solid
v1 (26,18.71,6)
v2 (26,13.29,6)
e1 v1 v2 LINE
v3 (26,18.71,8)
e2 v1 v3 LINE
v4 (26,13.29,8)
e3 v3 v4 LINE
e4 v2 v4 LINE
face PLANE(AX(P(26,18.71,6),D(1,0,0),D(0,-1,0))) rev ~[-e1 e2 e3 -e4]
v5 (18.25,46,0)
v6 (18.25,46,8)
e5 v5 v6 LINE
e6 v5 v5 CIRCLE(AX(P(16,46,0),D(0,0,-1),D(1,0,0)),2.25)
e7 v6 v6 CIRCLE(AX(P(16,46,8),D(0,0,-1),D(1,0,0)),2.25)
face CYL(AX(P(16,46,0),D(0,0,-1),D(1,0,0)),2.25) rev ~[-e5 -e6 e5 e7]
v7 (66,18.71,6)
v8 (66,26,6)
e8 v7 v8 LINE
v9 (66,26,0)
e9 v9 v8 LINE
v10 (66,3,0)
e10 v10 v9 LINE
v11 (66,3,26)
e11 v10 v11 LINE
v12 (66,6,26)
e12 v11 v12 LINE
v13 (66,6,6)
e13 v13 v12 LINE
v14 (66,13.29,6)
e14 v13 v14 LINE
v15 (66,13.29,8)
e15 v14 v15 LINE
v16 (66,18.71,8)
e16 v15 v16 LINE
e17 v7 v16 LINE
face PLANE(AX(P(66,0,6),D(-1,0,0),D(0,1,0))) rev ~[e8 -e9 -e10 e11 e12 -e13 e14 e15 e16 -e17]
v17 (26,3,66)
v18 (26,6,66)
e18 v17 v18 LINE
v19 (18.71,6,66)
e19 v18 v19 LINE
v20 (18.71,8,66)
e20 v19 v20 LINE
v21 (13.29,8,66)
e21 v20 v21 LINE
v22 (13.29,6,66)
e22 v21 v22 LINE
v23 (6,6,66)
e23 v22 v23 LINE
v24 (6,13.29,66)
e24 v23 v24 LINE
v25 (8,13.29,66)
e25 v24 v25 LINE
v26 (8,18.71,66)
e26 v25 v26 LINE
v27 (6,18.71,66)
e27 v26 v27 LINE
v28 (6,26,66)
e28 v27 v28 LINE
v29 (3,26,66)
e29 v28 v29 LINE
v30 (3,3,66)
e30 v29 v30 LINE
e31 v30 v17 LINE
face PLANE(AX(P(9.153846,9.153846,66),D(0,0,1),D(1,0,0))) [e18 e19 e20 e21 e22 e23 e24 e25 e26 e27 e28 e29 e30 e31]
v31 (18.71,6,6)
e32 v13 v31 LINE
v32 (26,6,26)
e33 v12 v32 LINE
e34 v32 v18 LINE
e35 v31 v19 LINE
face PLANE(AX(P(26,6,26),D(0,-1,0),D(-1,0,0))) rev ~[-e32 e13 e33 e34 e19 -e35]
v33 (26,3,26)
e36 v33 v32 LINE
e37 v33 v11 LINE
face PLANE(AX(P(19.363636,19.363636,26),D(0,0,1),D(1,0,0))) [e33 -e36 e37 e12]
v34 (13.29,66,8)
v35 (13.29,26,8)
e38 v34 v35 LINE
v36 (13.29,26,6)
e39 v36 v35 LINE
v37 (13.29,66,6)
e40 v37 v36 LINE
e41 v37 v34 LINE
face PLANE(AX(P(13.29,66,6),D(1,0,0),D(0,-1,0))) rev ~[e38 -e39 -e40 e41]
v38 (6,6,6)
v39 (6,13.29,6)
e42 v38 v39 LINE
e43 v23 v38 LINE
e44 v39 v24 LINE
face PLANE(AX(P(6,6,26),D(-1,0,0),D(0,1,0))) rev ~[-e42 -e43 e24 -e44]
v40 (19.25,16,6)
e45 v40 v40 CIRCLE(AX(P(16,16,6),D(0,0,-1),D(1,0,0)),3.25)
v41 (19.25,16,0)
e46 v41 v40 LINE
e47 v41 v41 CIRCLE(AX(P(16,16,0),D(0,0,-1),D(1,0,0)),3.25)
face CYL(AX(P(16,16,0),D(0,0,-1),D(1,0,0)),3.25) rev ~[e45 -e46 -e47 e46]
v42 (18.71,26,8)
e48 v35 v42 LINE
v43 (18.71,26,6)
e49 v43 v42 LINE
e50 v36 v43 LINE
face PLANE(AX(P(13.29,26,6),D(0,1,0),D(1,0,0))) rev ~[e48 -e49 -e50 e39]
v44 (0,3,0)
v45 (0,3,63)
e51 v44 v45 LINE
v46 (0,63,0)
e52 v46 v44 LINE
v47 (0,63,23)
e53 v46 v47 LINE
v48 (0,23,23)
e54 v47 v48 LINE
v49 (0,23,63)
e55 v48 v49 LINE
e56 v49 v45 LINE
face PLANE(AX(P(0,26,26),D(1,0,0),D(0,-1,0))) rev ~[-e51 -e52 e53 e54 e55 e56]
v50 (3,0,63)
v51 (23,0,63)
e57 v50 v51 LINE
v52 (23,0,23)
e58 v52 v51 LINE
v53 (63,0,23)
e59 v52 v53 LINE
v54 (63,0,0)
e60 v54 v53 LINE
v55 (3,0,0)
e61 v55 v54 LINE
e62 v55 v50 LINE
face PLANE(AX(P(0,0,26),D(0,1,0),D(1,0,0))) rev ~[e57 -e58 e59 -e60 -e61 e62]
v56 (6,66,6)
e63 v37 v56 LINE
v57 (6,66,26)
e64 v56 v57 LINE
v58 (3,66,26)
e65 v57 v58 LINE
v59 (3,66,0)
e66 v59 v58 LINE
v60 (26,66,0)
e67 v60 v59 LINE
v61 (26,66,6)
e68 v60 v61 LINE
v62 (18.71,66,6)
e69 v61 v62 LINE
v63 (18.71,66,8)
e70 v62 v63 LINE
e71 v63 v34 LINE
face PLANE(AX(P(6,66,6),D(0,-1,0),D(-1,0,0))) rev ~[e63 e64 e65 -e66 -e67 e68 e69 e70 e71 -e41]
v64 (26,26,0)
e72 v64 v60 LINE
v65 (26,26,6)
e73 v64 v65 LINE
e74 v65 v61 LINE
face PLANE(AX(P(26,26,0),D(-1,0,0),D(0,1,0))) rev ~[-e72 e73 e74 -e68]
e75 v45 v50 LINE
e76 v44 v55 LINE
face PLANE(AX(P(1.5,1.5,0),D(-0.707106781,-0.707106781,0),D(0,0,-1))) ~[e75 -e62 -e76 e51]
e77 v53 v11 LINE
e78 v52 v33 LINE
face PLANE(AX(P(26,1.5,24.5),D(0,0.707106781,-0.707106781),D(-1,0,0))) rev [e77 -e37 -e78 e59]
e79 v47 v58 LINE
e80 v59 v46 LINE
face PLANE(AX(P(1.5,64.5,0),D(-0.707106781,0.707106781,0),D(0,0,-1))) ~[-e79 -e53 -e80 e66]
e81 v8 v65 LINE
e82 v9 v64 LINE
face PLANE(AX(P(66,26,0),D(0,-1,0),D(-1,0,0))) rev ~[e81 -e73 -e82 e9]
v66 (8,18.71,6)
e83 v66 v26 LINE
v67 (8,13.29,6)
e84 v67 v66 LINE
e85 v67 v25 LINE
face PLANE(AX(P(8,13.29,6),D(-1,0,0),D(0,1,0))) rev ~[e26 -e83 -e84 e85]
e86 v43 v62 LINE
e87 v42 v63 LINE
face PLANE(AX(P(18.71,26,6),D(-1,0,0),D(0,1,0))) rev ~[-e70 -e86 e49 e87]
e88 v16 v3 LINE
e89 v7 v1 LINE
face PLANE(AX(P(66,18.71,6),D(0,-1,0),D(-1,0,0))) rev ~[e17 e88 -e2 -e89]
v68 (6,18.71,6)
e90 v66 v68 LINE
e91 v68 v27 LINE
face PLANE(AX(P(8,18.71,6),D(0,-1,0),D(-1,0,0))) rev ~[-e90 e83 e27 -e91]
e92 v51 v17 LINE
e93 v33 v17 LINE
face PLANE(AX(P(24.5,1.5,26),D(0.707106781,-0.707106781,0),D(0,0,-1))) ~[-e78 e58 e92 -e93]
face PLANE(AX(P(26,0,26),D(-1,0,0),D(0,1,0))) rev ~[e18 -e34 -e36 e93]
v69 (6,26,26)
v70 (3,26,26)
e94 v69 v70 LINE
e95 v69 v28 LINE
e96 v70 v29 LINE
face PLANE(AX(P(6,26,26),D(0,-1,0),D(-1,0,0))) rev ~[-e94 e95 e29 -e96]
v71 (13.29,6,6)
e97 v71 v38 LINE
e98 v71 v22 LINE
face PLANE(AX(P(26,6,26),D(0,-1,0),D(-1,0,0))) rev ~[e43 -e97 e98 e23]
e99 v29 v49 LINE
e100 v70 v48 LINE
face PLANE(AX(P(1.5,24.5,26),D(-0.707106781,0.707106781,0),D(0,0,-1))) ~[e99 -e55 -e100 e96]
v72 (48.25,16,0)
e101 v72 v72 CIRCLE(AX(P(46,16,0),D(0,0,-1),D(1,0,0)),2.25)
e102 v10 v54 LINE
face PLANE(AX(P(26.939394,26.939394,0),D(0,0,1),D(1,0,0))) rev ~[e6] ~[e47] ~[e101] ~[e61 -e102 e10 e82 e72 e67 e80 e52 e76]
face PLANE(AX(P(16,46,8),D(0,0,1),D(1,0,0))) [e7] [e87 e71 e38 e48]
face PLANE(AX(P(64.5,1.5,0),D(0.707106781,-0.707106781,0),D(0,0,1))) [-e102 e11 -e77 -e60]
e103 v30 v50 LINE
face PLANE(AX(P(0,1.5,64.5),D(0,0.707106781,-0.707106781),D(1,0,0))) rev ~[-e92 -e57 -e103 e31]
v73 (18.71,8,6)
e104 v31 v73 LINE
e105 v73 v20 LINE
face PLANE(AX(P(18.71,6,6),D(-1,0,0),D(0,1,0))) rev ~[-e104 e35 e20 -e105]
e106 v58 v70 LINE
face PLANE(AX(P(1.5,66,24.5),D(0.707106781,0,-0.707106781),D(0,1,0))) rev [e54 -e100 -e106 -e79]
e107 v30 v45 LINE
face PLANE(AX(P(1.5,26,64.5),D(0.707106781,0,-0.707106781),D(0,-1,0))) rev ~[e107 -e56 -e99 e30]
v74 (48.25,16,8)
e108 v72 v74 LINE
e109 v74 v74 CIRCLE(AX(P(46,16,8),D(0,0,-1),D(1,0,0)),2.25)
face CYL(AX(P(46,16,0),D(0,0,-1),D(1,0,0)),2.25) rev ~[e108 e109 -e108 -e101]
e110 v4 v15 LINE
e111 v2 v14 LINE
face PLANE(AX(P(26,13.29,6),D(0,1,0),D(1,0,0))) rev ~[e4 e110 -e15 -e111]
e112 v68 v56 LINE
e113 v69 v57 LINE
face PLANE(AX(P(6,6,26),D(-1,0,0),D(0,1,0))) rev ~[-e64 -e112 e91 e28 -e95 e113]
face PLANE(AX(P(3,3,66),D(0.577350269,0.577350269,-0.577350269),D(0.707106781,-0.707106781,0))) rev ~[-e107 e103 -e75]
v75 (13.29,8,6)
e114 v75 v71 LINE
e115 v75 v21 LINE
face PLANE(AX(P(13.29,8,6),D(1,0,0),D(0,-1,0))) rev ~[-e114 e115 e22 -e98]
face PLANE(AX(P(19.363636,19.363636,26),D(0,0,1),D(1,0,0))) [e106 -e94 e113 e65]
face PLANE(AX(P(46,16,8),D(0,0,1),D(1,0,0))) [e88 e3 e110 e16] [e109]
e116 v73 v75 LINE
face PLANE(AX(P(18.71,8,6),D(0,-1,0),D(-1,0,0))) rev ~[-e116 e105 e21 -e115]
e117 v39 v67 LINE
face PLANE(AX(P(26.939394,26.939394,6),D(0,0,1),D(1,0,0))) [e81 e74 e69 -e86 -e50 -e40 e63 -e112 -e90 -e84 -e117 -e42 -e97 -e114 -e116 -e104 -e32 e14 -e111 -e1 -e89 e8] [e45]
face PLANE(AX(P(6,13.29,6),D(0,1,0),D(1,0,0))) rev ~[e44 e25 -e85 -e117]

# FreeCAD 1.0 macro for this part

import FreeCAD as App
import Part
import Sketcher
Q = App.Units.Quantity


def edges_at(feature, points):
    """Names of the edges that pass closest to the given points."""
    edges = feature.Shape.Edges
    near = lambda p: min(range(len(edges)), key=lambda i: edges[i].distToShape(Part.Vertex(*p))[0])
    return sorted({f"Edge{near(p) + 1}" for p in points})


def add_polygon(sketch, points):
    """Adds a closed chain of lines whose ends are joined by coincident constraints."""
    first, n = sketch.GeometryCount, len(points)
    for a, b in zip(points, points[1:] + points[:1]):
        sketch.addGeometry(Part.LineSegment(App.Vector(*a, 0), App.Vector(*b, 0)), False)
    for i in range(n):
        sketch.addConstraint(Sketcher.Constraint("Coincident", first + i, 2, first + (i + 1) % n, 1))

doc = App.newDocument("Part")
body = doc.addObject("PartDesign::Body", "Body")

sketch1 = doc.addObject("Sketcher::SketchObject", "Sketch")
body.addObject(sketch1)
sketch1.AttachmentSupport = (doc.XY_Plane, [""])
sketch1.MapMode = "FlatFace"
add_polygon(sketch1, [(0, 66), (0, 0), (66, 0), (66, 26), (26, 26), (26, 66)])
sketch1.addConstraint([
    Sketcher.Constraint("Vertical", 0),
    Sketcher.Constraint("Horizontal", 1),
    Sketcher.Constraint("Vertical", 2),
    Sketcher.Constraint("Horizontal", 3),
    Sketcher.Constraint("Vertical", 4),
    Sketcher.Constraint("Horizontal", 5),
    Sketcher.Constraint("Coincident", 0, 2, -1, 1),
    Sketcher.Constraint("Equal", 1, 0),
    Sketcher.Constraint("Equal", 5, 2),
    Sketcher.Constraint("DistanceX", 1, 1, 1, 2, Q("66 mm")),
    Sketcher.Constraint("DistanceX", 3, 2, 3, 1, Q("40 mm")),
])
pad1 = doc.addObject("PartDesign::Pad", "Pad")
body.addObject(pad1)
pad1.Profile = sketch1
pad1.Length = 6

sketch2 = doc.addObject("Sketcher::SketchObject", "Sketch001")
body.addObject(sketch2)
sketch2.AttachmentSupport = (doc.XY_Plane, [""])
sketch2.MapMode = "FlatFace"
sketch2.AttachmentOffset = App.Placement(App.Vector(0, 0, 6), App.Rotation())
add_polygon(sketch2, [(6, 66), (0, 66), (0, 0), (66, 0), (66, 6), (6, 6)])
sketch2.addConstraint([
    Sketcher.Constraint("Horizontal", 0),
    Sketcher.Constraint("Vertical", 1),
    Sketcher.Constraint("Horizontal", 2),
    Sketcher.Constraint("Vertical", 3),
    Sketcher.Constraint("Horizontal", 4),
    Sketcher.Constraint("Vertical", 5),
    Sketcher.Constraint("Coincident", 1, 2, -1, 1),
    Sketcher.Constraint("Equal", 2, 1),
    Sketcher.Constraint("Equal", 0, 3),
    Sketcher.Constraint("DistanceX", 0, 2, 0, 1, Q("6 mm")),
    Sketcher.Constraint("DistanceX", 2, 1, 2, 2, Q("66 mm")),
])
pad2 = doc.addObject("PartDesign::Pad", "Pad001")
body.addObject(pad2)
pad2.Profile = sketch2
pad2.Length = 20

sketch3 = doc.addObject("Sketcher::SketchObject", "Sketch002")
body.addObject(sketch3)
sketch3.AttachmentSupport = (doc.XY_Plane, [""])
sketch3.MapMode = "FlatFace"
sketch3.AttachmentOffset = App.Placement(App.Vector(0, 0, 26), App.Rotation())
add_polygon(sketch3, [(6, 6), (6, 26), (0, 26), (0, 0), (26, 0), (26, 6)])
sketch3.addConstraint([
    Sketcher.Constraint("Vertical", 0),
    Sketcher.Constraint("Horizontal", 1),
    Sketcher.Constraint("Vertical", 2),
    Sketcher.Constraint("Horizontal", 3),
    Sketcher.Constraint("Vertical", 4),
    Sketcher.Constraint("Horizontal", 5),
    Sketcher.Constraint("Coincident", 2, 2, -1, 1),
    Sketcher.Constraint("Equal", 5, 0),
    Sketcher.Constraint("Equal", 3, 2),
    Sketcher.Constraint("DistanceX", 1, 2, 1, 1, Q("6 mm")),
    Sketcher.Constraint("DistanceX", 3, 1, 3, 2, Q("26 mm")),
])
pad3 = doc.addObject("PartDesign::Pad", "Pad002")
body.addObject(pad3)
pad3.Profile = sketch3
pad3.Length = 40

sketch4 = doc.addObject("Sketcher::SketchObject", "Sketch003")
body.addObject(sketch4)
sketch4.AttachmentSupport = (doc.XY_Plane, [""])
sketch4.MapMode = "FlatFace"
sketch4.AttachmentOffset = App.Placement(App.Vector(0, 0, 6), App.Rotation())
add_polygon(sketch4, [(13.29, 6), (18.71, 6), (18.71, 8), (13.29, 8)])
add_polygon(sketch4, [(6, 18.71), (6, 13.29), (8, 13.29), (8, 18.71)])
sketch4.addConstraint([
    Sketcher.Constraint("Horizontal", 0),
    Sketcher.Constraint("Vertical", 1),
    Sketcher.Constraint("Horizontal", 2),
    Sketcher.Constraint("Vertical", 3),
    Sketcher.Constraint("Vertical", 4),
    Sketcher.Constraint("Horizontal", 5),
    Sketcher.Constraint("Vertical", 6),
    Sketcher.Constraint("Horizontal", 7),
    Sketcher.Constraint("Equal", 7, 1),
    Sketcher.Constraint("Equal", 2, 4),
    Sketcher.Constraint("DistanceX", 5, 1, 5, 2, Q("2 mm")),
    Sketcher.Constraint("DistanceY", -1, 1, 0, 2, Q("6 mm")),
    Sketcher.Constraint("DistanceX", -1, 1, 4, 2, Q("6 mm")),
    Sketcher.Constraint("DistanceX", 0, 1, 0, 2, Q("5.42 mm")),
    Sketcher.Constraint("DistanceX", -1, 1, 0, 2, Q("18.71 mm")),
    Sketcher.Constraint("DistanceY", -1, 1, 4, 2, Q("13.29 mm")),
])
pad4 = doc.addObject("PartDesign::Pad", "Pad003")
body.addObject(pad4)
pad4.Profile = sketch4
pad4.Length = 60

sketch5 = doc.addObject("Sketcher::SketchObject", "Sketch004")
body.addObject(sketch5)
sketch5.AttachmentSupport = (doc.XY_Plane, [""])
sketch5.MapMode = "FlatFace"
sketch5.AttachmentOffset = App.Placement(App.Vector(0, 0, 6), App.Rotation())
add_polygon(sketch5, [(66, 13.29), (66, 18.71), (26, 18.71), (26, 13.29)])
add_polygon(sketch5, [(18.71, 66), (13.29, 66), (13.29, 26), (18.71, 26)])
sketch5.addConstraint([
    Sketcher.Constraint("Vertical", 0),
    Sketcher.Constraint("Horizontal", 1),
    Sketcher.Constraint("Vertical", 2),
    Sketcher.Constraint("Horizontal", 3),
    Sketcher.Constraint("Horizontal", 4),
    Sketcher.Constraint("Vertical", 5),
    Sketcher.Constraint("Horizontal", 6),
    Sketcher.Constraint("Vertical", 7),
    Sketcher.Constraint("Equal", 6, 0),
    Sketcher.Constraint("Equal", 3, 5),
    Sketcher.Constraint("DistanceX", 1, 2, 1, 1, Q("40 mm")),
    Sketcher.Constraint("DistanceX", -1, 1, 0, 2, Q("66 mm")),
    Sketcher.Constraint("DistanceY", -1, 1, 4, 2, Q("66 mm")),
    Sketcher.Constraint("DistanceX", 4, 2, 4, 1, Q("5.42 mm")),
    Sketcher.Constraint("DistanceY", -1, 1, 0, 2, Q("18.71 mm")),
    Sketcher.Constraint("DistanceX", -1, 1, 4, 2, Q("13.29 mm")),
])
pad5 = doc.addObject("PartDesign::Pad", "Pad004")
body.addObject(pad5)
pad5.Profile = sketch5
pad5.Length = 2

sketch6 = doc.addObject("Sketcher::SketchObject", "Sketch005")
body.addObject(sketch6)
sketch6.AttachmentSupport = (doc.XY_Plane, [""])
sketch6.MapMode = "FlatFace"
sketch6.addGeometry([
    Part.Circle(App.Vector(16, 16, 0), App.Vector(0, 0, 1), 3.25),
    Part.Circle(App.Vector(46, 16, 0), App.Vector(0, 0, 1), 2.25),
    Part.Circle(App.Vector(16, 46, 0), App.Vector(0, 0, 1), 2.25),
], False)
sketch6.addConstraint([
    Sketcher.Constraint("Equal", 1, 2),
    Sketcher.Constraint("Horizontal", 0, 3, 1, 3),
    Sketcher.Constraint("Vertical", 0, 3, 2, 3),
    Sketcher.Constraint("Diameter", 0, Q("6.5 mm")),
    Sketcher.Constraint("Diameter", 1, Q("4.5 mm")),
    Sketcher.Constraint("DistanceX", -1, 1, 0, 3, Q("16 mm")),
    Sketcher.Constraint("DistanceY", -1, 1, 0, 3, Q("16 mm")),
    Sketcher.Constraint("DistanceX", -1, 1, 1, 3, Q("46 mm")),
    Sketcher.Constraint("DistanceY", -1, 1, 2, 3, Q("46 mm")),
])
pocket1 = doc.addObject("PartDesign::Pocket", "Pocket")
body.addObject(pocket1)
pocket1.Profile = sketch6
pocket1.Type = "ThroughAll"
pocket1.Reversed = True
doc.recompute()

chamfer = doc.addObject("PartDesign::Chamfer", "Chamfer")
body.addObject(chamfer)
chamfer.Base = (pocket1, edges_at(pocket1, [
    (0, 0, 33),
    (0, 26, 46),
    (0, 46, 26),
    (26, 0, 46),
    (46, 0, 26),
    (0, 13, 66),
    (13, 0, 66),
    (0, 66, 13),
    (66, 0, 13),
]))
chamfer.Size = 3

doc.recompute()
